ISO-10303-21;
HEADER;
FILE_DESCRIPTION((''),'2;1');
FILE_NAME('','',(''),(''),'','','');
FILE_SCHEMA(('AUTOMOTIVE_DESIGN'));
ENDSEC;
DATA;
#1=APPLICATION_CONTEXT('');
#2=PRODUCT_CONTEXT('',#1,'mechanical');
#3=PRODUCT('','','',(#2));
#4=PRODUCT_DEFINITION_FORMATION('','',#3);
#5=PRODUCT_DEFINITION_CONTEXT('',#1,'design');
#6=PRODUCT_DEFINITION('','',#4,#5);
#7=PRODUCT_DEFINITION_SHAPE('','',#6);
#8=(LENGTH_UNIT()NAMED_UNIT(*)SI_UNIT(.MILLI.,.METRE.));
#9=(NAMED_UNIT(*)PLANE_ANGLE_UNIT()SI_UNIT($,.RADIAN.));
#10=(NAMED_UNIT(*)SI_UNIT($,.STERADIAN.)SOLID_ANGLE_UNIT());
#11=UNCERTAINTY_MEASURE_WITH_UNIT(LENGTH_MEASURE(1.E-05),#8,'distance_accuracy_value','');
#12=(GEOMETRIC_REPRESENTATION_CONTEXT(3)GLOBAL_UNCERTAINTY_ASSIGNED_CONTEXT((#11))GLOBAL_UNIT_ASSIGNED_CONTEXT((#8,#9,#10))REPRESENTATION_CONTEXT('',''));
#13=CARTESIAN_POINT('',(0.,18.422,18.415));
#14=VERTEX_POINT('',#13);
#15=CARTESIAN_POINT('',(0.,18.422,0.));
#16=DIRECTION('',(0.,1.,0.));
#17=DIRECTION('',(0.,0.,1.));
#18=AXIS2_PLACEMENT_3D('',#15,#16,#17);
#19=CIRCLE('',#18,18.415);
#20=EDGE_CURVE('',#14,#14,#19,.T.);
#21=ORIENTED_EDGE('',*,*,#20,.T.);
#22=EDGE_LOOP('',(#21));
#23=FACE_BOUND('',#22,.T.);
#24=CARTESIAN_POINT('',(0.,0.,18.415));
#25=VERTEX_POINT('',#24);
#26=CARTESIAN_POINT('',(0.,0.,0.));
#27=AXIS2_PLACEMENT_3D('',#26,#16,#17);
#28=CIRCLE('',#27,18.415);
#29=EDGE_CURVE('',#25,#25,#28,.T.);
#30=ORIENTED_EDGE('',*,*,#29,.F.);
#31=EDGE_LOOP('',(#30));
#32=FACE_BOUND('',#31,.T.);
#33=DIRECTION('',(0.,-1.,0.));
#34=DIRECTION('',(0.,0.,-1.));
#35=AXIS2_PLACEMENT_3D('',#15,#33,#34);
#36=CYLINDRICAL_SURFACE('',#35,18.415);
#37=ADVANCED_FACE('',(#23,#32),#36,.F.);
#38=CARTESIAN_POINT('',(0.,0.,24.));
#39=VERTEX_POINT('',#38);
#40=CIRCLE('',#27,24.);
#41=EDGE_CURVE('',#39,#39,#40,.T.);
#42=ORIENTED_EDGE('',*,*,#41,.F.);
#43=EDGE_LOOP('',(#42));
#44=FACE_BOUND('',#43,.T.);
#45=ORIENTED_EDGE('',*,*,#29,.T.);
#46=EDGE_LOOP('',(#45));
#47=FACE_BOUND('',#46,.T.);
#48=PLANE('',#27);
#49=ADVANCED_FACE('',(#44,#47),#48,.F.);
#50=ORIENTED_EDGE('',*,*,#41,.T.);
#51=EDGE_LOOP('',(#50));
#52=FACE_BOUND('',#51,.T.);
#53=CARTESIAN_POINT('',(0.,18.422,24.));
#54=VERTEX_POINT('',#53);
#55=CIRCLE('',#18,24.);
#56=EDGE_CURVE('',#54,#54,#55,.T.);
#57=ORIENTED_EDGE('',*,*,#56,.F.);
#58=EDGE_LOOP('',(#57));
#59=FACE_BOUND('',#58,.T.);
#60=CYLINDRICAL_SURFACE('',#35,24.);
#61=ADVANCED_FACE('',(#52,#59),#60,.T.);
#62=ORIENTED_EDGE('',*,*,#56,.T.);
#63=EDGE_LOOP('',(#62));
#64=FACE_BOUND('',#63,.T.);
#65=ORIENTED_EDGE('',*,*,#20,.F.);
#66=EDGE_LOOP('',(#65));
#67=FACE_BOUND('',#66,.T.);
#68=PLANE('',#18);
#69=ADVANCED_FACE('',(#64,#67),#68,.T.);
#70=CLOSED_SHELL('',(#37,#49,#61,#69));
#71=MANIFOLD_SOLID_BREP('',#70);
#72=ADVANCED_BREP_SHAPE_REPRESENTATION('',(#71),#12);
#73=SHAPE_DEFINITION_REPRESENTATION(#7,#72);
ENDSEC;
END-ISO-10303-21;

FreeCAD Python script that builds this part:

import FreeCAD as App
import Part
import Sketcher
from FreeCAD import Vector

doc = App.newDocument("Part")
params = doc.addObject("Spreadsheet::Sheet", "Params")
for row, (alias, value) in enumerate([
    ("sketch1_diameter", "48 mm"),
    ("sketch1_diameter2", "36.83 mm"),
    ("pad1_length", "18.422 mm"),
], start=1):
    params.set(f"A{row}", alias)
    params.set(f"B{row}", "=" + value)
    params.setAlias(f"B{row}", alias)

body = doc.addObject("PartDesign::Body", "Body")

# Sketch on XZ plane
sketch1 = body.newObject("Sketcher::SketchObject", "Sketch")
sketch1.AttachmentSupport = (doc.getObject("XZ_Plane"), [""])
sketch1.MapMode = "FlatFace"
sketch1.addGeometry(Part.Circle(Vector(0, 0, 0), Vector(0, 0, 1), 24), False)
sketch1.addGeometry(Part.Circle(Vector(0, 0, 0), Vector(0, 0, 1), 18), False)
sketch1.addConstraint(Sketcher.Constraint("Coincident", 0, 3, -1, 1))
sketch1.addConstraint(Sketcher.Constraint("Coincident", 1, 3, -1, 1))
sketch1.addConstraint(Sketcher.Constraint("Diameter", 0, 48.0))
sketch1.addConstraint(Sketcher.Constraint("Diameter", 1, 36.83))
sketch1.setExpression("Constraints[2]", "Params.sketch1_diameter")
sketch1.setExpression("Constraints[3]", "Params.sketch1_diameter2")
pad1 = body.newObject("PartDesign::Pad", "Pad")
pad1.Profile = sketch1
pad1.setExpression("Length", "Params.pad1_length")
pad1.Reversed = True

doc.recompute()
